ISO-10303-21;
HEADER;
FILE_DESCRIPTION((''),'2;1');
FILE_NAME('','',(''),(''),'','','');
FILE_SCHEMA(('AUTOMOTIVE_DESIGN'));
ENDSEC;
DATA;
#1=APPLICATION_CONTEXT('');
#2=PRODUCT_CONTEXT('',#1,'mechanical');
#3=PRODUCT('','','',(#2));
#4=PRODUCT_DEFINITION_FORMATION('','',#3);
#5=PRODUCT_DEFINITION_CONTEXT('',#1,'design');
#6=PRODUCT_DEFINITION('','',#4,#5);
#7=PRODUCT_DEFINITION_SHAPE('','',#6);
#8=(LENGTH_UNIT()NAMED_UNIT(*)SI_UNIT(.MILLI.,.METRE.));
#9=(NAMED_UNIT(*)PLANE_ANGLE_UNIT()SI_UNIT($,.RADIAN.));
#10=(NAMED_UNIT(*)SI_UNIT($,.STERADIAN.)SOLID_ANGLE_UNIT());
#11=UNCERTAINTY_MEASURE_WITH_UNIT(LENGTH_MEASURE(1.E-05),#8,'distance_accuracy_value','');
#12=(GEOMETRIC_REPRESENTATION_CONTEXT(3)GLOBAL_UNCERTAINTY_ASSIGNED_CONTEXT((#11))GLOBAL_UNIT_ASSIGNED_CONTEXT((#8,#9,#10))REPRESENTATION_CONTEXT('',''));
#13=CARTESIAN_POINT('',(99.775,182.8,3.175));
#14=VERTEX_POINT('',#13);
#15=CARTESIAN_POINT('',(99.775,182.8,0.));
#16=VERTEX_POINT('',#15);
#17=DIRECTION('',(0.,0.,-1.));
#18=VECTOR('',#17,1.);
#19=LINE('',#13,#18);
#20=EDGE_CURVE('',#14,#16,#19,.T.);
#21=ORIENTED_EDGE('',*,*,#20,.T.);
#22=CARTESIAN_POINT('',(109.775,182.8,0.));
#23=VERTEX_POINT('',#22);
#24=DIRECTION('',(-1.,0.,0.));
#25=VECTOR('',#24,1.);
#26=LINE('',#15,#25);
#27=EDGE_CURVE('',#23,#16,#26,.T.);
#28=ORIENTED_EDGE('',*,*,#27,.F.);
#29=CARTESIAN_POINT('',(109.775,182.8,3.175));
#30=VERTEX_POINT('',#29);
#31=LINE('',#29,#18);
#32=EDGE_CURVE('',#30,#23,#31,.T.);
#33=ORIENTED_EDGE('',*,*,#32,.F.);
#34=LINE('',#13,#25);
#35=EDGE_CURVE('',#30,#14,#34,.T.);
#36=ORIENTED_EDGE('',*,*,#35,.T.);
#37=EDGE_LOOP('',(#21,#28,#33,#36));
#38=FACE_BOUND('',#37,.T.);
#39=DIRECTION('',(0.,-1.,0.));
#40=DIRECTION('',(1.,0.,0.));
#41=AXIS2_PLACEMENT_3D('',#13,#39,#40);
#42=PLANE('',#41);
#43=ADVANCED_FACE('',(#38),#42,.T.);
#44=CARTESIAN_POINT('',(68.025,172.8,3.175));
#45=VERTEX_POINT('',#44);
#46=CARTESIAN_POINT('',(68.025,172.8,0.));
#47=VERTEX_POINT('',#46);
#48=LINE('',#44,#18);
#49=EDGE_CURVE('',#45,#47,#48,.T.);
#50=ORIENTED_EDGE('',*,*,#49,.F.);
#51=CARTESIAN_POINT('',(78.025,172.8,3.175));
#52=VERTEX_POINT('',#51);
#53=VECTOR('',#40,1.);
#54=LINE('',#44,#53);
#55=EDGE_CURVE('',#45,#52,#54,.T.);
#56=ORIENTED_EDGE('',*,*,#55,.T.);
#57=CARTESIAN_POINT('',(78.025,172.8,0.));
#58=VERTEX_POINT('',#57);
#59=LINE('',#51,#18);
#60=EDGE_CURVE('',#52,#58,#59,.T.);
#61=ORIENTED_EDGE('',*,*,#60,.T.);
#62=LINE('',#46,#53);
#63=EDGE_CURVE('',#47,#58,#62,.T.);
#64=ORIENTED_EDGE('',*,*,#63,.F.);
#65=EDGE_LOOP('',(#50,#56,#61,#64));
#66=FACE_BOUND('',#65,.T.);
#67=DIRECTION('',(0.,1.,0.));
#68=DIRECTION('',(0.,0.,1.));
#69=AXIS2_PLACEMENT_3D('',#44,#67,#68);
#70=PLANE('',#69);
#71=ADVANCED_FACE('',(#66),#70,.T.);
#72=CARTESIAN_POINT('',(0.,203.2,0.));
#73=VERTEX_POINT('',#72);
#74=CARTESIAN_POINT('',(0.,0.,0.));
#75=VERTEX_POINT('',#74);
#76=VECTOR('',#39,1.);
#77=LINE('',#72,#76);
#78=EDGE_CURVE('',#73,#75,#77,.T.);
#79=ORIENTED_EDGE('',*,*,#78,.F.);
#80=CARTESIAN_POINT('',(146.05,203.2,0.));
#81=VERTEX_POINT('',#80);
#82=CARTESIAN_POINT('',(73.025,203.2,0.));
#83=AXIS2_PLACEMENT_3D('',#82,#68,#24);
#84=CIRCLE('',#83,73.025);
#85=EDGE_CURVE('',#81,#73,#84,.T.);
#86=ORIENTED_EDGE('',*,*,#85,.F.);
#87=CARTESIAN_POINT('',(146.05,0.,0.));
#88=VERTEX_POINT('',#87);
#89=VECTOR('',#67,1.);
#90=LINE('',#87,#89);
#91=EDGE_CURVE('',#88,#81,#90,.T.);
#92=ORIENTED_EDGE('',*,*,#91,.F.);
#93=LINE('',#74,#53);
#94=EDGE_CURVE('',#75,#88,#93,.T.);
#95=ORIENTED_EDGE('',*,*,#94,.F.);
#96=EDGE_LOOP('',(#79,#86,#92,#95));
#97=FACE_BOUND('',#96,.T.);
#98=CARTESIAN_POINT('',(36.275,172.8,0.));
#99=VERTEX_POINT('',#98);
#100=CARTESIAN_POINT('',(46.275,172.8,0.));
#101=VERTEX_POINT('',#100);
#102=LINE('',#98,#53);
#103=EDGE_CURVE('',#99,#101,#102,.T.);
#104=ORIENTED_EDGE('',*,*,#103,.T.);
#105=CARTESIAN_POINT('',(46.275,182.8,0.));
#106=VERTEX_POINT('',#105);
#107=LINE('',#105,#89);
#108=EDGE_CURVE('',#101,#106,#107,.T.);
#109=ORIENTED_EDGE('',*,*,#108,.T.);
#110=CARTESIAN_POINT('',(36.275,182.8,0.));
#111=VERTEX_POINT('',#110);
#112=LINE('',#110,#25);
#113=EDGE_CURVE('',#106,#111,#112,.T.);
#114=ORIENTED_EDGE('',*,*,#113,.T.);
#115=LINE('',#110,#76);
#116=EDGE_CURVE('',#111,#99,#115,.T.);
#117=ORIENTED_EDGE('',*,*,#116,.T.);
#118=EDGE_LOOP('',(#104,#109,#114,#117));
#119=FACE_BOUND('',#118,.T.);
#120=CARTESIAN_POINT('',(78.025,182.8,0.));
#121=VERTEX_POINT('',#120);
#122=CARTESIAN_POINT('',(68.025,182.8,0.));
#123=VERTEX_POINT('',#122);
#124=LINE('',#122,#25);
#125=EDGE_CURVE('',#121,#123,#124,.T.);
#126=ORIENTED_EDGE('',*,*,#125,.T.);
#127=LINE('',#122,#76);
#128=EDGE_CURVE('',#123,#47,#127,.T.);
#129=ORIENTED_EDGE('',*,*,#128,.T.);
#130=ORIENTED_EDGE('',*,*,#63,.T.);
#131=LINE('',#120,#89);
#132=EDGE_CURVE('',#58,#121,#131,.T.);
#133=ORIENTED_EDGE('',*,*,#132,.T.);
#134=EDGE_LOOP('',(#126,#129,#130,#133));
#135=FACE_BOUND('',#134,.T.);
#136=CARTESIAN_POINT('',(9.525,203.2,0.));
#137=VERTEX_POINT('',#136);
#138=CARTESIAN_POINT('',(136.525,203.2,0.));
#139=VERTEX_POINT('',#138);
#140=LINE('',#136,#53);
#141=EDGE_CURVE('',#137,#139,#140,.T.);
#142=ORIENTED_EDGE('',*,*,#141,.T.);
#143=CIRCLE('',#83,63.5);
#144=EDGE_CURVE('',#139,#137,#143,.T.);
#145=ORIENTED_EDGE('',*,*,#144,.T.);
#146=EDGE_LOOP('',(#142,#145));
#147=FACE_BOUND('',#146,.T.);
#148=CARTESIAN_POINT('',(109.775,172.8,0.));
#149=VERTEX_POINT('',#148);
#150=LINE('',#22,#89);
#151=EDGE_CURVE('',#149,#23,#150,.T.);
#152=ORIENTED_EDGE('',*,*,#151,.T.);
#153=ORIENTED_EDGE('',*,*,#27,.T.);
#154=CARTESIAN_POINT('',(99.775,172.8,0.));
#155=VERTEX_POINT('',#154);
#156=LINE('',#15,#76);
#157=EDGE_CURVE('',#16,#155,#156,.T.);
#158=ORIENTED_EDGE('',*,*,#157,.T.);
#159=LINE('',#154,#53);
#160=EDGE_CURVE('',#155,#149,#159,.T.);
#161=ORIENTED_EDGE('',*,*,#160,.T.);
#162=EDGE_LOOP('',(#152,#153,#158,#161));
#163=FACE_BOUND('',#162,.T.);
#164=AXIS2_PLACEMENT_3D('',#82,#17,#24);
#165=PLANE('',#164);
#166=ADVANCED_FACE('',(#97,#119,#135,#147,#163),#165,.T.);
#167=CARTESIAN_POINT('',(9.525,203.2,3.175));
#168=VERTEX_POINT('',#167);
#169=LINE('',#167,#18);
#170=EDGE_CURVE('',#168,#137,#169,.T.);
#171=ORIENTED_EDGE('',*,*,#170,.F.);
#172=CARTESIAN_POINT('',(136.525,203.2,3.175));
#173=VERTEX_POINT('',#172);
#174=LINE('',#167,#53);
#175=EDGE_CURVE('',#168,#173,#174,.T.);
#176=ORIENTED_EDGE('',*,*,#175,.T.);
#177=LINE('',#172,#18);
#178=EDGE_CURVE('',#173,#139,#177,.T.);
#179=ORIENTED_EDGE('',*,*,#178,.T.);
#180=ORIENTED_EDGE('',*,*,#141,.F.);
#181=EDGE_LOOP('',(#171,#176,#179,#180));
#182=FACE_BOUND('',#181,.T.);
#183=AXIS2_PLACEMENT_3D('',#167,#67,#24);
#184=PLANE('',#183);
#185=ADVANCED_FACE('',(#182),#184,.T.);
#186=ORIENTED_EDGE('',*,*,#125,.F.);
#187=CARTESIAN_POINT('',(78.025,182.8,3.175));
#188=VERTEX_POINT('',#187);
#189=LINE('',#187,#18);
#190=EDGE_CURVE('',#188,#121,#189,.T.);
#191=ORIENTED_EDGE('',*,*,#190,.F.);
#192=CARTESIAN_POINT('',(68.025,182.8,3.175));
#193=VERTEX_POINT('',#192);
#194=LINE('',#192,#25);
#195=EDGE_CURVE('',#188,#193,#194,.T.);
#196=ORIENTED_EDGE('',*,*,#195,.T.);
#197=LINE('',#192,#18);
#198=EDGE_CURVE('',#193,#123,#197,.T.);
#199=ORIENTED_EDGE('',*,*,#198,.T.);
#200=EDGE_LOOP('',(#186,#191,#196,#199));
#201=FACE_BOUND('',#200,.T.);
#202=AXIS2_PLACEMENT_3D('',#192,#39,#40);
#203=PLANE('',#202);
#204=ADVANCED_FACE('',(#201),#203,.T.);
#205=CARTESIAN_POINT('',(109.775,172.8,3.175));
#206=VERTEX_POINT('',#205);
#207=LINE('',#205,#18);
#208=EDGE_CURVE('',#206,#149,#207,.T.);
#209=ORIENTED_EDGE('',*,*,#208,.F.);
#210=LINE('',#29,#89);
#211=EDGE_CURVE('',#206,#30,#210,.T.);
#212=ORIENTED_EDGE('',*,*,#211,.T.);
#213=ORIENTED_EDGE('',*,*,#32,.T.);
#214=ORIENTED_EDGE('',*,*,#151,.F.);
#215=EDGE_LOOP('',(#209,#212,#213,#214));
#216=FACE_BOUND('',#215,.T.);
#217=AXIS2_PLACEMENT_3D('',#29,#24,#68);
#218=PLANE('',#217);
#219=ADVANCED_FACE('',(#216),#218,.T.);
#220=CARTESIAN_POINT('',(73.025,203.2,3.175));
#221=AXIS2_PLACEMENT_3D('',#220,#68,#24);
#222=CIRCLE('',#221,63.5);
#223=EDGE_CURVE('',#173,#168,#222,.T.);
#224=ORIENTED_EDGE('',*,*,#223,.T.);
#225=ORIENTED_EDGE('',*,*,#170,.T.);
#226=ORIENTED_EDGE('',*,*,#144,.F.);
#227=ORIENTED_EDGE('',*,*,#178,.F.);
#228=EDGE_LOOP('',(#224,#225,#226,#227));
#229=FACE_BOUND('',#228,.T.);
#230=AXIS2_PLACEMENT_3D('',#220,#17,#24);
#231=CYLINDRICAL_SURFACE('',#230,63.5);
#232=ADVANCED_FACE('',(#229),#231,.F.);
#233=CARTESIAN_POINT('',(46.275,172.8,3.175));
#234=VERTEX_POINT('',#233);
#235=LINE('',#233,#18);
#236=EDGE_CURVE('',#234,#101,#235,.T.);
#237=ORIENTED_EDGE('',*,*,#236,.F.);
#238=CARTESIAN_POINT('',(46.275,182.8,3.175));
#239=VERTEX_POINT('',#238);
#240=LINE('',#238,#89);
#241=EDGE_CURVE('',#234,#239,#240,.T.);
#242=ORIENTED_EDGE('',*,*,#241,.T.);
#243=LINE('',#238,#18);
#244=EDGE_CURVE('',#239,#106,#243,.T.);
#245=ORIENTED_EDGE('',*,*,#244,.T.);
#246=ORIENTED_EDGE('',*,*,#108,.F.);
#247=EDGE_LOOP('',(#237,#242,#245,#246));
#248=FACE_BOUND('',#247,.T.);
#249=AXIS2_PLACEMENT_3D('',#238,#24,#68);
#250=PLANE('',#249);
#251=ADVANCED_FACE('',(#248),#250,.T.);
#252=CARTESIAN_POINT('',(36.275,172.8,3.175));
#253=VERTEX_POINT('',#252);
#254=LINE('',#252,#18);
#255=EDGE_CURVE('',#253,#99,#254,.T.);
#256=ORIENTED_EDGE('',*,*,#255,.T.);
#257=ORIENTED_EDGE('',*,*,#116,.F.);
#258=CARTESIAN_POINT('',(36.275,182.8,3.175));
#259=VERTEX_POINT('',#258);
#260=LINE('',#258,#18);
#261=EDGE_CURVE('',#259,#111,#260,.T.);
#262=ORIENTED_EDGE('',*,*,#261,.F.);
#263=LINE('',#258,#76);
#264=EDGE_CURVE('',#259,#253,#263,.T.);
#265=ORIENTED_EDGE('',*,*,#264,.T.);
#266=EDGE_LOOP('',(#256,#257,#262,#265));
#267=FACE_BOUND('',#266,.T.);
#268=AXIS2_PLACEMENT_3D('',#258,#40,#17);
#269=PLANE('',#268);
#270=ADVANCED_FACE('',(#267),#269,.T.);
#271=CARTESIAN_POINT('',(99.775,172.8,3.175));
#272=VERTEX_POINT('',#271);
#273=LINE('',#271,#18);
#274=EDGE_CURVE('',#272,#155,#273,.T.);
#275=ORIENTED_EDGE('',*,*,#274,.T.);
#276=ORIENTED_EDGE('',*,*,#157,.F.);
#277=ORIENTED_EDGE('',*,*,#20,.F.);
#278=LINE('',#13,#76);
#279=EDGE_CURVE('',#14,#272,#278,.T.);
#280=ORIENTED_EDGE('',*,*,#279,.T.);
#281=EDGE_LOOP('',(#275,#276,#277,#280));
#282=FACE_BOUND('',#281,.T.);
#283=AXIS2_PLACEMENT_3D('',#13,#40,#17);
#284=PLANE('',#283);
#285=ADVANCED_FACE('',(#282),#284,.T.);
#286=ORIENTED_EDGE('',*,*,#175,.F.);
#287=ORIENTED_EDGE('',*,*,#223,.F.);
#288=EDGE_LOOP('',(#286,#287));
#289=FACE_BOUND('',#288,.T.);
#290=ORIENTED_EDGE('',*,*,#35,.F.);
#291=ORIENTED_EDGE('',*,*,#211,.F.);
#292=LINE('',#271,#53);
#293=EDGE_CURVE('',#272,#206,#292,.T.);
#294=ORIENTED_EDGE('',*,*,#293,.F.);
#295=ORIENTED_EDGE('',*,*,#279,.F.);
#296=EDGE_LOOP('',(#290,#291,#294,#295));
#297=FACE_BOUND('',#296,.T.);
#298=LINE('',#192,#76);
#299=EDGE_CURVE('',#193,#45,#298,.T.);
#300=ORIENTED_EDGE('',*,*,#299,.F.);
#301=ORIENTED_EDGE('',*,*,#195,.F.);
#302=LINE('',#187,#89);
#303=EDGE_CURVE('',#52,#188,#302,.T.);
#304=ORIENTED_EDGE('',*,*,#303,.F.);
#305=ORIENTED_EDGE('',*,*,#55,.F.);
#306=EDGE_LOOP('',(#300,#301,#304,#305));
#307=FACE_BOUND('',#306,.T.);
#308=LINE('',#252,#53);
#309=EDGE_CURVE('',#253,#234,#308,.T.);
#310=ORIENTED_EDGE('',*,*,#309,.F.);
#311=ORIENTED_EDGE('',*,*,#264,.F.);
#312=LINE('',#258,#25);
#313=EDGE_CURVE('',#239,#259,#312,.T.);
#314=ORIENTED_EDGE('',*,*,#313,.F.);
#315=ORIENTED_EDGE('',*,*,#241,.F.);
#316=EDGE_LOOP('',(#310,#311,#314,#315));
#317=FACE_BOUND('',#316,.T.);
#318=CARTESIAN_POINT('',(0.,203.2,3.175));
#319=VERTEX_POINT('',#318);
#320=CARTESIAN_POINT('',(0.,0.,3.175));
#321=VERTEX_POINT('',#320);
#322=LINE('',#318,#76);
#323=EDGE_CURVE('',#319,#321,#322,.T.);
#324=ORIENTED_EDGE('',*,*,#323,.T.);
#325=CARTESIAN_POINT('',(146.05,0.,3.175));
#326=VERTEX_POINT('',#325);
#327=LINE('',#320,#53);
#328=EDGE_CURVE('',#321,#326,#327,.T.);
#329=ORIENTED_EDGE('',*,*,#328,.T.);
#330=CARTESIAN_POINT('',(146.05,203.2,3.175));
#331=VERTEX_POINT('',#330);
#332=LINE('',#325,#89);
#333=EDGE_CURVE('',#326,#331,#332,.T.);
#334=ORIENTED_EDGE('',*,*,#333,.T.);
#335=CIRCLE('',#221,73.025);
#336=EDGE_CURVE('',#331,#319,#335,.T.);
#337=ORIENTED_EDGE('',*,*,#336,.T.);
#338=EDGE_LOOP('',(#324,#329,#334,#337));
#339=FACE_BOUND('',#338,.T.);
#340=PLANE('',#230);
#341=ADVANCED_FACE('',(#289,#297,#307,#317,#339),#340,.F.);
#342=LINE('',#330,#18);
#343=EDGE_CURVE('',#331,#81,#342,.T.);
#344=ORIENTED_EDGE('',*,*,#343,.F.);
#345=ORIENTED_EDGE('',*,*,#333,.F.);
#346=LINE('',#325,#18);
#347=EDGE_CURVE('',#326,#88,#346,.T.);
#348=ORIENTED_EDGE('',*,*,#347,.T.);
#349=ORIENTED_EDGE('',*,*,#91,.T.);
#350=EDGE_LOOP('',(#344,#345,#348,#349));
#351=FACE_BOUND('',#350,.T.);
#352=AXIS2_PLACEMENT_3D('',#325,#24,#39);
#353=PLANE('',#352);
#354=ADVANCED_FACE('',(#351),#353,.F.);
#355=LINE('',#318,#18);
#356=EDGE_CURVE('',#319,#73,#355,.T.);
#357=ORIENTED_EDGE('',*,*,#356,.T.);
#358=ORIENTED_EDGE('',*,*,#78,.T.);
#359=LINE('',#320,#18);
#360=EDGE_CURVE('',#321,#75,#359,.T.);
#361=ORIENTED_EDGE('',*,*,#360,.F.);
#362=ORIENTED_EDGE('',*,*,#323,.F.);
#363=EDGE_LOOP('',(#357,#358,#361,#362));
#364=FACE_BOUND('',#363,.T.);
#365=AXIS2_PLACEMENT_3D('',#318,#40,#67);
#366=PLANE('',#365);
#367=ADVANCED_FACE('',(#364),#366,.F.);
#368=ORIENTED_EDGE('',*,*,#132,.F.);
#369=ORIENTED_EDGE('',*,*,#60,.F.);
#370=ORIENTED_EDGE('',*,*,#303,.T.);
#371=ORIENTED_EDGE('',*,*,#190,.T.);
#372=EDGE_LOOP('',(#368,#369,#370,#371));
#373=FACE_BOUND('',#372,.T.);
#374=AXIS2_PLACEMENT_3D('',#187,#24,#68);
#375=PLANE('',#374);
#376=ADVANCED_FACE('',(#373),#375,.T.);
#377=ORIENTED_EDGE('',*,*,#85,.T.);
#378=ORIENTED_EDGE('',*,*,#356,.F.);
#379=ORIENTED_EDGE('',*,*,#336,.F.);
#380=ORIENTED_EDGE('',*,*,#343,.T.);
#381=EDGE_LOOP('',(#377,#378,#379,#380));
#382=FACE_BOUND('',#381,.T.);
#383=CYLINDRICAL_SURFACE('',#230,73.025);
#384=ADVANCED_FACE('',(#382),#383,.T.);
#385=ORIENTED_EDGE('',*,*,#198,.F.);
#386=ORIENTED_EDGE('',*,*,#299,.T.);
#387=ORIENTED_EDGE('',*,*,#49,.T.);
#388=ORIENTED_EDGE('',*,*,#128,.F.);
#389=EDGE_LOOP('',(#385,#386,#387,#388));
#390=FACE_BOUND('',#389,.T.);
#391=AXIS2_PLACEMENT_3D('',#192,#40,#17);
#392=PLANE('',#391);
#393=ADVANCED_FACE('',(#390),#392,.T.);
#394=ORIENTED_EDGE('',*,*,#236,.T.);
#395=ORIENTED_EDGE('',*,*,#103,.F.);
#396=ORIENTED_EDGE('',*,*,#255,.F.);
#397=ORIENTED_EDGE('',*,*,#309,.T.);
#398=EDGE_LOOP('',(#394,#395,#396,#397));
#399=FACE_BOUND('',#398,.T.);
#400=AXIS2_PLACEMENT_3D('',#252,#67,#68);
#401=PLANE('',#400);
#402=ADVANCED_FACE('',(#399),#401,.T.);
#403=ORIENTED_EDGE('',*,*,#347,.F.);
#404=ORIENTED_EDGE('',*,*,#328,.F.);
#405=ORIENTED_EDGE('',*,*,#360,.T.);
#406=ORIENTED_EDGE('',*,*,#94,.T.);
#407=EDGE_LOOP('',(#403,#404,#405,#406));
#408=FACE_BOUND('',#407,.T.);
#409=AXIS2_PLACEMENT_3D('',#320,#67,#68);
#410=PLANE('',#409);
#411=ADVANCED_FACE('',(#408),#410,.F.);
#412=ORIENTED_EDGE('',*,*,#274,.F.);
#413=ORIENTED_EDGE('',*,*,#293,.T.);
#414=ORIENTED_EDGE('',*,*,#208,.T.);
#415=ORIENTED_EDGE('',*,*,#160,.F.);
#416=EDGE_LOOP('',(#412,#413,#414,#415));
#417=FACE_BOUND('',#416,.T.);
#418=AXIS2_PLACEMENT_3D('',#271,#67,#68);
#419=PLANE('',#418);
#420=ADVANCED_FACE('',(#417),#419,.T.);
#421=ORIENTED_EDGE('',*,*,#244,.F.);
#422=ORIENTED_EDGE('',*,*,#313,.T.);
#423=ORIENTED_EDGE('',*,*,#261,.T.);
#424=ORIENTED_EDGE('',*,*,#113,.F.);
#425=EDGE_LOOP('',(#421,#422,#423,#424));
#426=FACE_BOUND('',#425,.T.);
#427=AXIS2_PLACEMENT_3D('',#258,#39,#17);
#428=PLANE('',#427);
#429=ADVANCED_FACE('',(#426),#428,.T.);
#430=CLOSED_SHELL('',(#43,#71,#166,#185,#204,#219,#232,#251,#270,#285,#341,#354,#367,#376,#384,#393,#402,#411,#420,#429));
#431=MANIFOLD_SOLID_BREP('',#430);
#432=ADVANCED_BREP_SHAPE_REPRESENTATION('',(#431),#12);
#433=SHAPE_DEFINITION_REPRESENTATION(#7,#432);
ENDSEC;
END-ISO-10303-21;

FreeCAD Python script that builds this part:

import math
import FreeCAD as App
import Part
import Sketcher
Q = App.Units.Quantity

doc = App.newDocument("Part")
body = doc.addObject("PartDesign::Body", "Body")

sketch1 = body.newObject("Sketcher::SketchObject", "Sketch")
sketch1.AttachmentSupport = (doc.getObject("XY_Plane"), [""])
sketch1.MapMode = "FlatFace"
sketch1.addGeometry([
    Part.LineSegment(App.Vector(0, 0, 0), App.Vector(146, 0, 0)),
    Part.LineSegment(App.Vector(146, 0, 0), App.Vector(146, 203, 0)),
    Part.ArcOfCircle(Part.Circle(App.Vector(73, 203, 0), App.Vector(0, 0, 1), 73), math.radians(0), math.radians(180)),
    Part.LineSegment(App.Vector(0, 203, 0), App.Vector(0, 0, 0)),
    Part.LineSegment(App.Vector(46, 173, 0), App.Vector(36, 173, 0)),
    Part.LineSegment(App.Vector(36, 173, 0), App.Vector(36, 183, 0)),
    Part.LineSegment(App.Vector(36, 183, 0), App.Vector(46, 183, 0)),
    Part.LineSegment(App.Vector(46, 183, 0), App.Vector(46, 173, 0)),
    Part.LineSegment(App.Vector(78, 173, 0), App.Vector(68, 173, 0)),
    Part.LineSegment(App.Vector(68, 173, 0), App.Vector(68, 183, 0)),
    Part.LineSegment(App.Vector(68, 183, 0), App.Vector(78, 183, 0)),
    Part.LineSegment(App.Vector(78, 183, 0), App.Vector(78, 173, 0)),
    Part.LineSegment(App.Vector(110, 173, 0), App.Vector(100, 173, 0)),
    Part.LineSegment(App.Vector(100, 173, 0), App.Vector(100, 183, 0)),
    Part.LineSegment(App.Vector(100, 183, 0), App.Vector(110, 183, 0)),
    Part.LineSegment(App.Vector(110, 183, 0), App.Vector(110, 173, 0)),
    Part.LineSegment(App.Vector(137, 203, 0), App.Vector(10, 203, 0)),
    Part.ArcOfCircle(Part.Circle(App.Vector(73, 203, 0), App.Vector(0, 0, 1), 64), math.radians(0), math.radians(180)),
], False)
sketch1.addConstraint([
    Sketcher.Constraint("Coincident", 0, 2, 1, 1),
    Sketcher.Constraint("Tangent", 1, 2, 2, 1),
    Sketcher.Constraint("Tangent", 2, 2, 3, 1),
    Sketcher.Constraint("Coincident", 3, 2, 0, 1),
    Sketcher.Constraint("Coincident", 4, 2, 5, 1),
    Sketcher.Constraint("Coincident", 5, 2, 6, 1),
    Sketcher.Constraint("Coincident", 6, 2, 7, 1),
    Sketcher.Constraint("Coincident", 7, 2, 4, 1),
    Sketcher.Constraint("Coincident", 8, 2, 9, 1),
    Sketcher.Constraint("Coincident", 9, 2, 10, 1),
    Sketcher.Constraint("Coincident", 10, 2, 11, 1),
    Sketcher.Constraint("Coincident", 11, 2, 8, 1),
    Sketcher.Constraint("Coincident", 12, 2, 13, 1),
    Sketcher.Constraint("Coincident", 13, 2, 14, 1),
    Sketcher.Constraint("Coincident", 14, 2, 15, 1),
    Sketcher.Constraint("Coincident", 15, 2, 12, 1),
    Sketcher.Constraint("Coincident", 16, 1, 17, 1),
    Sketcher.Constraint("Coincident", 17, 2, 16, 2),
    Sketcher.Constraint("Horizontal", 0),
    Sketcher.Constraint("Vertical", 1),
    Sketcher.Constraint("Vertical", 3),
    Sketcher.Constraint("Horizontal", 4),
    Sketcher.Constraint("Vertical", 5),
    Sketcher.Constraint("Horizontal", 6),
    Sketcher.Constraint("Vertical", 7),
    Sketcher.Constraint("Horizontal", 8),
    Sketcher.Constraint("Vertical", 9),
    Sketcher.Constraint("Horizontal", 10),
    Sketcher.Constraint("Vertical", 11),
    Sketcher.Constraint("Horizontal", 12),
    Sketcher.Constraint("Vertical", 13),
    Sketcher.Constraint("Horizontal", 14),
    Sketcher.Constraint("Vertical", 15),
    Sketcher.Constraint("Horizontal", 16),
    Sketcher.Constraint("Coincident", 3, 2, -1, 1),
    Sketcher.Constraint("Coincident", 17, 3, 2, 3),
    Sketcher.Constraint("Horizontal", 7, 2, 8, 2),
    Sketcher.Constraint("Horizontal", 6, 2, 9, 2),
    Sketcher.Constraint("Horizontal", 11, 2, 12, 2),
    Sketcher.Constraint("Horizontal", 10, 2, 13, 2),
    Sketcher.Constraint("Horizontal", 2, 2, 16, 1),
    Sketcher.Constraint("Equal", 6, 8),
    Sketcher.Constraint("Equal", 10, 12),
    Sketcher.Constraint("Equal", 14, 5),
    Sketcher.Constraint("Radius", 17, Q("2.5 in")),
    Sketcher.Constraint("DistanceY", 1, 1, 1, 2, Q("8 in")),
    Sketcher.Constraint("Radius", 2, Q("2.875 in")),
    Sketcher.Constraint("DistanceX", 4, 2, 8, 2, Q("1.25 in")),
    Sketcher.Constraint("DistanceX", 8, 2, 12, 2, Q("1.25 in")),
    Sketcher.Constraint("DistanceX", 4, 2, 4, 1, Q("10 mm")),
    Sketcher.Constraint("DistanceX", -1, 1, 4, 2, Q("36.275 mm")),
    Sketcher.Constraint("DistanceY", -1, 1, 4, 2, Q("172.8 mm")),
])
pad1 = body.newObject("PartDesign::Pad", "Pad")
pad1.Profile = sketch1
pad1.Length = Q("0.125 in")

doc.recompute()
